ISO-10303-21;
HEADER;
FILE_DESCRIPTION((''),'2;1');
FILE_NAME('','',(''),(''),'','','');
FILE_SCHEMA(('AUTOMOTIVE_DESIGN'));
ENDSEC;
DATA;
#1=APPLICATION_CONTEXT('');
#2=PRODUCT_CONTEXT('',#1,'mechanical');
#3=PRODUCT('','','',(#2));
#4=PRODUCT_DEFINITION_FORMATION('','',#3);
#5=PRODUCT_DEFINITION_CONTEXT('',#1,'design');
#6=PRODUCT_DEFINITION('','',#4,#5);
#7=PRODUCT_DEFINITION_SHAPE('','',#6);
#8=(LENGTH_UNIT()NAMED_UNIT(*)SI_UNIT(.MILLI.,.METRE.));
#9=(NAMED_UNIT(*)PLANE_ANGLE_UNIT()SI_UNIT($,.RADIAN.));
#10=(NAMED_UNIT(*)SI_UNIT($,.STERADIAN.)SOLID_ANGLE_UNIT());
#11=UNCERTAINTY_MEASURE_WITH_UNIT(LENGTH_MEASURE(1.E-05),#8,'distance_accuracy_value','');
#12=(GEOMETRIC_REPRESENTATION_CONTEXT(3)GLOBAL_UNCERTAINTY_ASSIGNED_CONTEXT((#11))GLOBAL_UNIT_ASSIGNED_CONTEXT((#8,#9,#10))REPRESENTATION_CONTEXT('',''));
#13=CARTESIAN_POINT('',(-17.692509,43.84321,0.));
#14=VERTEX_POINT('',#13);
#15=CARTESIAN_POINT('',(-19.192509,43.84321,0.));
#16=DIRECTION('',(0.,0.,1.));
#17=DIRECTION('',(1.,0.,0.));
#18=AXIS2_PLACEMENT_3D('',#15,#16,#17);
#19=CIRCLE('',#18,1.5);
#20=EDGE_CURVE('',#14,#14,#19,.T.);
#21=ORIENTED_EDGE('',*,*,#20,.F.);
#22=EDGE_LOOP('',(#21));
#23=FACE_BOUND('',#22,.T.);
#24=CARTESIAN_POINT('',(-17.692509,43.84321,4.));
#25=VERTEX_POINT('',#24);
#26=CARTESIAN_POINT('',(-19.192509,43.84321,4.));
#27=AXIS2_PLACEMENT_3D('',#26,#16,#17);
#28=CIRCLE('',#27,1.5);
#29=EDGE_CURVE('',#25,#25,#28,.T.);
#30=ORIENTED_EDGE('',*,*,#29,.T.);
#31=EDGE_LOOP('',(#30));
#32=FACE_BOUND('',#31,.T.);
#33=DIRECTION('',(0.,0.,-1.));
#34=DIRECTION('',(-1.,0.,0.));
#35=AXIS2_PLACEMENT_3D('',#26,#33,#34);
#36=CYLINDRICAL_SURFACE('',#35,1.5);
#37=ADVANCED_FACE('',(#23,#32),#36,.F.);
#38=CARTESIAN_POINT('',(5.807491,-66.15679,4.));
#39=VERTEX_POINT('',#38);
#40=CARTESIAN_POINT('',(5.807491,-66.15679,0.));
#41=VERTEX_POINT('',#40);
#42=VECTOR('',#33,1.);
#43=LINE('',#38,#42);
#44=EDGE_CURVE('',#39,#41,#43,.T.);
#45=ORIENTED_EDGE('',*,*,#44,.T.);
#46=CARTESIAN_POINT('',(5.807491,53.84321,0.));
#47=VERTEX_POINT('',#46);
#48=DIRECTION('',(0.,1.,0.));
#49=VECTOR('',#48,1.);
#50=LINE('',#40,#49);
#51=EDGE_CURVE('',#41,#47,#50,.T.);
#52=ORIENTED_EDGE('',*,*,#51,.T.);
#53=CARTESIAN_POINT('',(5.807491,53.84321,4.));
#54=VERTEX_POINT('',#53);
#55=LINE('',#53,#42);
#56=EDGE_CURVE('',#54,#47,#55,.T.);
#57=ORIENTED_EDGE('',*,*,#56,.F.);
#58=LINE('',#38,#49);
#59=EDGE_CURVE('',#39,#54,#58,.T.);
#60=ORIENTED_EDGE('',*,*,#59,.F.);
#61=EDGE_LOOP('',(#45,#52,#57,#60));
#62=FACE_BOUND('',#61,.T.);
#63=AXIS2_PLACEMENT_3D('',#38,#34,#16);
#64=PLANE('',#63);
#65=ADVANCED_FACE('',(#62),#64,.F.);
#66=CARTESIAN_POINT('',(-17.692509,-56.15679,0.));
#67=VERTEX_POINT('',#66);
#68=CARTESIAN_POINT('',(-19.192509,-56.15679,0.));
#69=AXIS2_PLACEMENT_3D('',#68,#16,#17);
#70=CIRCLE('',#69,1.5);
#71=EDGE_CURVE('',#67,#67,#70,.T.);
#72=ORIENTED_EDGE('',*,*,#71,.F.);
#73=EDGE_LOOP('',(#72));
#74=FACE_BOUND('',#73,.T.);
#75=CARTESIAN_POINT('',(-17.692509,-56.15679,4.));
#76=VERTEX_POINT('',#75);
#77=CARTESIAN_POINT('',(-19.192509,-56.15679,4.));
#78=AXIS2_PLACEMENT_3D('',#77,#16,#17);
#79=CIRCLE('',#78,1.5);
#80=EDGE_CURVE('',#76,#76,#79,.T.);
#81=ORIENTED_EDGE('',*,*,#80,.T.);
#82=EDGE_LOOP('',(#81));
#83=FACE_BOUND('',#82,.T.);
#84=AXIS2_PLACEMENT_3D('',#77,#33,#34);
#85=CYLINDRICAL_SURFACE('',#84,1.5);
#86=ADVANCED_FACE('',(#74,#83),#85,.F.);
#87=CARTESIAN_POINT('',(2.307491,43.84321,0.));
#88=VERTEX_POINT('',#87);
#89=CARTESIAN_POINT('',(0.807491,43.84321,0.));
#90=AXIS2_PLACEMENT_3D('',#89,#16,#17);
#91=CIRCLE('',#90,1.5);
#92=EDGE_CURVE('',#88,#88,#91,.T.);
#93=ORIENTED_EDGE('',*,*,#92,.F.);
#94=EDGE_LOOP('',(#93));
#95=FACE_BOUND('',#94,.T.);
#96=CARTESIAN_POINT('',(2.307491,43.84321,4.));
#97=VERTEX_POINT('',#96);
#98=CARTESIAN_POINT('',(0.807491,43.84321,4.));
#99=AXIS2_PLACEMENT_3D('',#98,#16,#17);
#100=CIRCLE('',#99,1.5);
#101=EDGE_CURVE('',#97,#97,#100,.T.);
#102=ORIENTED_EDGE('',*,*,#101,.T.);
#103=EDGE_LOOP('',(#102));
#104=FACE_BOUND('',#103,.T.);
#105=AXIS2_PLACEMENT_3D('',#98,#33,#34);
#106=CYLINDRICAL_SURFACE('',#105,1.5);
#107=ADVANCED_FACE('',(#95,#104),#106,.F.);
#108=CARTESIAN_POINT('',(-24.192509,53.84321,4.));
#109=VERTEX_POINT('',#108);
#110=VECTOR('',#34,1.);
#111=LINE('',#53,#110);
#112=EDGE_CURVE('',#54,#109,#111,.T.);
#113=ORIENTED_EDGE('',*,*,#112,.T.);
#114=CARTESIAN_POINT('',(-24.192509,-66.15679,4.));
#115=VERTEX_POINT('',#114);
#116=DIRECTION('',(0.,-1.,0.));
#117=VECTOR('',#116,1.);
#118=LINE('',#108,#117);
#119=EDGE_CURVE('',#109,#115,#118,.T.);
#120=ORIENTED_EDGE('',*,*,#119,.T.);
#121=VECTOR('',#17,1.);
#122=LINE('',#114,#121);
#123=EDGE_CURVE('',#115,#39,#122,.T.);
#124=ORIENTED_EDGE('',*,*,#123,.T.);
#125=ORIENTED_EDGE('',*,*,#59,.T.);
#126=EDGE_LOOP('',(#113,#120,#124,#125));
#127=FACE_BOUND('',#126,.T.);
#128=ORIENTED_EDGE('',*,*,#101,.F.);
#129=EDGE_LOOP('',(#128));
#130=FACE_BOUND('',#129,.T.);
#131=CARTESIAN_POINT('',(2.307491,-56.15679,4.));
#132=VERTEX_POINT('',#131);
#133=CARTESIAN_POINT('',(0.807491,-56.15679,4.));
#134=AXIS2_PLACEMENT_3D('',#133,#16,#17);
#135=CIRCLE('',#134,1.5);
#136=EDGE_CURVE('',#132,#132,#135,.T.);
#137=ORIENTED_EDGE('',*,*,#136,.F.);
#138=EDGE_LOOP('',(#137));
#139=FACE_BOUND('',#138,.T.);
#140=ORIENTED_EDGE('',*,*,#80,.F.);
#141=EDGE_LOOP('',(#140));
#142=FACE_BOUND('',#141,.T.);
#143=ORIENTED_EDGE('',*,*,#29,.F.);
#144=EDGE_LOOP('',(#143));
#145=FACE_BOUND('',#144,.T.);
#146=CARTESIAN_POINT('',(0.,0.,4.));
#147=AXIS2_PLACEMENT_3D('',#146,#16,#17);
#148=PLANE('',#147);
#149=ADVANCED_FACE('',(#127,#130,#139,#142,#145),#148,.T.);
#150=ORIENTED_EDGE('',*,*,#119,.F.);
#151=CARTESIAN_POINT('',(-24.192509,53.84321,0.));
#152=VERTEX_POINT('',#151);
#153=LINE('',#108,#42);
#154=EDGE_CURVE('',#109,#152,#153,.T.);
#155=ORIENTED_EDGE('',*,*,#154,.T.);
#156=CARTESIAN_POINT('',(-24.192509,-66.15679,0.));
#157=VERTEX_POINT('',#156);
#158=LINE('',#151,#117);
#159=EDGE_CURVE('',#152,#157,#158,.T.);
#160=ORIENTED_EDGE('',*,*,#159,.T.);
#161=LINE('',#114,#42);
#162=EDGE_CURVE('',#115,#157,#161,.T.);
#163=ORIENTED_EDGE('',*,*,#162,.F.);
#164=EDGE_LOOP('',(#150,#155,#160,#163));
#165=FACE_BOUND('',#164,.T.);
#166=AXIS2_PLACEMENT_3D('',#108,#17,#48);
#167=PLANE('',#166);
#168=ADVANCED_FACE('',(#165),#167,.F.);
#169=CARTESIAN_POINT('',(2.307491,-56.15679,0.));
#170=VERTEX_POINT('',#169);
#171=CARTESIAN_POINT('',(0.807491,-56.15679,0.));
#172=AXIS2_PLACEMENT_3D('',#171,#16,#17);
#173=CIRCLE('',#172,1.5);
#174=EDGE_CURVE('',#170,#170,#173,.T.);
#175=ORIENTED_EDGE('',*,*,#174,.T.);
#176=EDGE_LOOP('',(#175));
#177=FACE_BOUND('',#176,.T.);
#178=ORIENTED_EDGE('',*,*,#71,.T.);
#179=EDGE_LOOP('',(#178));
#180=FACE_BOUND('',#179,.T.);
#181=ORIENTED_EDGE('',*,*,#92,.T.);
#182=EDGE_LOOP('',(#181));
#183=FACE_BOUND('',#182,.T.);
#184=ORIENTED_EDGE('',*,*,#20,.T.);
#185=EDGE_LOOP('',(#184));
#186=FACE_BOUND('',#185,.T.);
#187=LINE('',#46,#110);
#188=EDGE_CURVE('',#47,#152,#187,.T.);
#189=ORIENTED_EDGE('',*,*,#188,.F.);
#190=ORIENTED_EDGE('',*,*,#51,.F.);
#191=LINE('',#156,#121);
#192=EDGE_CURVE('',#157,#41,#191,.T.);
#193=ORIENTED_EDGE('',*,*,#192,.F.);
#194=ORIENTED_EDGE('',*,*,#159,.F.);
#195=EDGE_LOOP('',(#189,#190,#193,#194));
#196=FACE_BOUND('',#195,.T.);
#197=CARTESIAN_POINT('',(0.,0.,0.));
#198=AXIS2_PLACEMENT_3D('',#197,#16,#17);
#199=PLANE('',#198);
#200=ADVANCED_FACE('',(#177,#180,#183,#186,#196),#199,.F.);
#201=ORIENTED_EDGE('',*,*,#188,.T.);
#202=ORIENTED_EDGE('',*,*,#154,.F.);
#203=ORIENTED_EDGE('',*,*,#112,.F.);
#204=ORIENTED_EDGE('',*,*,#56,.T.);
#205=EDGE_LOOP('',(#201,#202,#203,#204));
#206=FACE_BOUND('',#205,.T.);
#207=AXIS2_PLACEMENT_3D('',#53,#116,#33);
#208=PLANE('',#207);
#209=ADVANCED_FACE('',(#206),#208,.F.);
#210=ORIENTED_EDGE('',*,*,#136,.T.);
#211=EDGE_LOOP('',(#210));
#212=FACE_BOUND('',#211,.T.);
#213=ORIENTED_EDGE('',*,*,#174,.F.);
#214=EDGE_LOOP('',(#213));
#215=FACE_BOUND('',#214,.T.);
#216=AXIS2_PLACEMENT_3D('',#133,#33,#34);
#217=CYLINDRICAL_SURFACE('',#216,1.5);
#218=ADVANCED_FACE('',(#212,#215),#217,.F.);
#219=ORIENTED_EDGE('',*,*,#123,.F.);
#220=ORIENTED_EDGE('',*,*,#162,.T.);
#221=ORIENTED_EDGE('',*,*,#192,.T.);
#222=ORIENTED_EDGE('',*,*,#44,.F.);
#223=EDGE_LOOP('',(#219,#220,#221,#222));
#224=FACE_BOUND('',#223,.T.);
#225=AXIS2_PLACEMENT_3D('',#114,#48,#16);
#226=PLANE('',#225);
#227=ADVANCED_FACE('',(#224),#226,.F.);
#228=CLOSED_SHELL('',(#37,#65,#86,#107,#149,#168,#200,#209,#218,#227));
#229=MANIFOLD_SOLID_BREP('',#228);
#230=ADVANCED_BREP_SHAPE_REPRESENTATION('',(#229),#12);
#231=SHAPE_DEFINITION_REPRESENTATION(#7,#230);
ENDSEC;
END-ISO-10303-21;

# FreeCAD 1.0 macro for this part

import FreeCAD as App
import Part
import Sketcher
from FreeCAD import Vector


def add_polygon(sketch, points):
    """Adds a closed chain of lines whose ends are joined by coincident constraints."""
    first, n = sketch.GeometryCount, len(points)
    for a, b in zip(points, points[1:] + points[:1]):
        sketch.addGeometry(Part.LineSegment(App.Vector(*a, 0), App.Vector(*b, 0)), False)
    for i in range(n):
        sketch.addConstraint(Sketcher.Constraint("Coincident", first + i, 2, first + (i + 1) % n, 1))

doc = App.newDocument("Part")
params = doc.addObject("Spreadsheet::Sheet", "Params")
for row, (alias, value) in enumerate([
    ("sketch1_diameter", "3 mm"),
    ("sketch1_width", "30 mm"),
    ("sketch1_height", "120 mm"),
    ("pad1_length", "4 mm"),
], start=1):
    params.set(f"A{row}", alias)
    params.set(f"B{row}", "=" + value)
    params.setAlias(f"B{row}", alias)

body = doc.addObject("PartDesign::Body", "Body")

# Sketch on XY plane
sketch1 = body.newObject("Sketcher::SketchObject", "Sketch")
sketch1.AttachmentSupport = (doc.getObject("XY_Plane"), [""])
sketch1.MapMode = "FlatFace"
add_polygon(sketch1, [(-24.2, 53.8), (-24.2, -66.2), (5.8, -66.2), (5.8, 53.8)])  # lines 0-3
sketch1.addGeometry(Part.Circle(Vector(-19.2, -56.2, 0), Vector(0, 0, 1), 1.5), False)  # 4
sketch1.addGeometry(Part.Circle(Vector(0.8, -56.2, 0), Vector(0, 0, 1), 1.5), False)  # 5
sketch1.addGeometry(Part.Circle(Vector(-19.2, 43.8, 0), Vector(0, 0, 1), 1.5), False)  # 6
sketch1.addGeometry(Part.Circle(Vector(0.8, 43.8, 0), Vector(0, 0, 1), 1.5), False)  # 7
sketch1.addConstraint([
    Sketcher.Constraint("Vertical", 0),
    Sketcher.Constraint("Horizontal", 1),
    Sketcher.Constraint("Vertical", 2),
    Sketcher.Constraint("Horizontal", 3),
    Sketcher.Constraint("Equal", 4, 5),
    Sketcher.Constraint("Equal", 5, 6),
    Sketcher.Constraint("Equal", 6, 7),
    Sketcher.Constraint("Horizontal", 4, 3, 5, 3),
    Sketcher.Constraint("Horizontal", 6, 3, 7, 3),
    Sketcher.Constraint("Vertical", 4, 3, 6, 3),
    Sketcher.Constraint("Vertical", 5, 3, 7, 3),
    Sketcher.Constraint("Diameter", 4, 3.0),
    Sketcher.Constraint("DistanceX", 1, 1, 1, 2, 30.0),
    Sketcher.Constraint("DistanceY", 0, 2, 0, 1, 120.0),
    Sketcher.Constraint("DistanceX", 4, 3, 5, 3, 20.0),
    Sketcher.Constraint("DistanceY", 4, 3, 6, 3, 100.0),
    Sketcher.Constraint("DistanceX", 0, 2, 4, 3, 5.0),
    Sketcher.Constraint("DistanceY", 0, 2, 4, 3, 10.0),
    Sketcher.Constraint("DistanceX", 4, 3, -1, 1, 19.192509),
    Sketcher.Constraint("DistanceY", 4, 3, -1, 1, 56.15679),
])
sketch1.setExpression("Constraints[15]", "Params.sketch1_diameter")
sketch1.setExpression("Constraints[16]", "Params.sketch1_width")
sketch1.setExpression("Constraints[17]", "Params.sketch1_height")
pad1 = body.newObject("PartDesign::Pad", "Pad")
pad1.Profile = sketch1
pad1.setExpression("Length", "Params.pad1_length")

doc.recompute()
